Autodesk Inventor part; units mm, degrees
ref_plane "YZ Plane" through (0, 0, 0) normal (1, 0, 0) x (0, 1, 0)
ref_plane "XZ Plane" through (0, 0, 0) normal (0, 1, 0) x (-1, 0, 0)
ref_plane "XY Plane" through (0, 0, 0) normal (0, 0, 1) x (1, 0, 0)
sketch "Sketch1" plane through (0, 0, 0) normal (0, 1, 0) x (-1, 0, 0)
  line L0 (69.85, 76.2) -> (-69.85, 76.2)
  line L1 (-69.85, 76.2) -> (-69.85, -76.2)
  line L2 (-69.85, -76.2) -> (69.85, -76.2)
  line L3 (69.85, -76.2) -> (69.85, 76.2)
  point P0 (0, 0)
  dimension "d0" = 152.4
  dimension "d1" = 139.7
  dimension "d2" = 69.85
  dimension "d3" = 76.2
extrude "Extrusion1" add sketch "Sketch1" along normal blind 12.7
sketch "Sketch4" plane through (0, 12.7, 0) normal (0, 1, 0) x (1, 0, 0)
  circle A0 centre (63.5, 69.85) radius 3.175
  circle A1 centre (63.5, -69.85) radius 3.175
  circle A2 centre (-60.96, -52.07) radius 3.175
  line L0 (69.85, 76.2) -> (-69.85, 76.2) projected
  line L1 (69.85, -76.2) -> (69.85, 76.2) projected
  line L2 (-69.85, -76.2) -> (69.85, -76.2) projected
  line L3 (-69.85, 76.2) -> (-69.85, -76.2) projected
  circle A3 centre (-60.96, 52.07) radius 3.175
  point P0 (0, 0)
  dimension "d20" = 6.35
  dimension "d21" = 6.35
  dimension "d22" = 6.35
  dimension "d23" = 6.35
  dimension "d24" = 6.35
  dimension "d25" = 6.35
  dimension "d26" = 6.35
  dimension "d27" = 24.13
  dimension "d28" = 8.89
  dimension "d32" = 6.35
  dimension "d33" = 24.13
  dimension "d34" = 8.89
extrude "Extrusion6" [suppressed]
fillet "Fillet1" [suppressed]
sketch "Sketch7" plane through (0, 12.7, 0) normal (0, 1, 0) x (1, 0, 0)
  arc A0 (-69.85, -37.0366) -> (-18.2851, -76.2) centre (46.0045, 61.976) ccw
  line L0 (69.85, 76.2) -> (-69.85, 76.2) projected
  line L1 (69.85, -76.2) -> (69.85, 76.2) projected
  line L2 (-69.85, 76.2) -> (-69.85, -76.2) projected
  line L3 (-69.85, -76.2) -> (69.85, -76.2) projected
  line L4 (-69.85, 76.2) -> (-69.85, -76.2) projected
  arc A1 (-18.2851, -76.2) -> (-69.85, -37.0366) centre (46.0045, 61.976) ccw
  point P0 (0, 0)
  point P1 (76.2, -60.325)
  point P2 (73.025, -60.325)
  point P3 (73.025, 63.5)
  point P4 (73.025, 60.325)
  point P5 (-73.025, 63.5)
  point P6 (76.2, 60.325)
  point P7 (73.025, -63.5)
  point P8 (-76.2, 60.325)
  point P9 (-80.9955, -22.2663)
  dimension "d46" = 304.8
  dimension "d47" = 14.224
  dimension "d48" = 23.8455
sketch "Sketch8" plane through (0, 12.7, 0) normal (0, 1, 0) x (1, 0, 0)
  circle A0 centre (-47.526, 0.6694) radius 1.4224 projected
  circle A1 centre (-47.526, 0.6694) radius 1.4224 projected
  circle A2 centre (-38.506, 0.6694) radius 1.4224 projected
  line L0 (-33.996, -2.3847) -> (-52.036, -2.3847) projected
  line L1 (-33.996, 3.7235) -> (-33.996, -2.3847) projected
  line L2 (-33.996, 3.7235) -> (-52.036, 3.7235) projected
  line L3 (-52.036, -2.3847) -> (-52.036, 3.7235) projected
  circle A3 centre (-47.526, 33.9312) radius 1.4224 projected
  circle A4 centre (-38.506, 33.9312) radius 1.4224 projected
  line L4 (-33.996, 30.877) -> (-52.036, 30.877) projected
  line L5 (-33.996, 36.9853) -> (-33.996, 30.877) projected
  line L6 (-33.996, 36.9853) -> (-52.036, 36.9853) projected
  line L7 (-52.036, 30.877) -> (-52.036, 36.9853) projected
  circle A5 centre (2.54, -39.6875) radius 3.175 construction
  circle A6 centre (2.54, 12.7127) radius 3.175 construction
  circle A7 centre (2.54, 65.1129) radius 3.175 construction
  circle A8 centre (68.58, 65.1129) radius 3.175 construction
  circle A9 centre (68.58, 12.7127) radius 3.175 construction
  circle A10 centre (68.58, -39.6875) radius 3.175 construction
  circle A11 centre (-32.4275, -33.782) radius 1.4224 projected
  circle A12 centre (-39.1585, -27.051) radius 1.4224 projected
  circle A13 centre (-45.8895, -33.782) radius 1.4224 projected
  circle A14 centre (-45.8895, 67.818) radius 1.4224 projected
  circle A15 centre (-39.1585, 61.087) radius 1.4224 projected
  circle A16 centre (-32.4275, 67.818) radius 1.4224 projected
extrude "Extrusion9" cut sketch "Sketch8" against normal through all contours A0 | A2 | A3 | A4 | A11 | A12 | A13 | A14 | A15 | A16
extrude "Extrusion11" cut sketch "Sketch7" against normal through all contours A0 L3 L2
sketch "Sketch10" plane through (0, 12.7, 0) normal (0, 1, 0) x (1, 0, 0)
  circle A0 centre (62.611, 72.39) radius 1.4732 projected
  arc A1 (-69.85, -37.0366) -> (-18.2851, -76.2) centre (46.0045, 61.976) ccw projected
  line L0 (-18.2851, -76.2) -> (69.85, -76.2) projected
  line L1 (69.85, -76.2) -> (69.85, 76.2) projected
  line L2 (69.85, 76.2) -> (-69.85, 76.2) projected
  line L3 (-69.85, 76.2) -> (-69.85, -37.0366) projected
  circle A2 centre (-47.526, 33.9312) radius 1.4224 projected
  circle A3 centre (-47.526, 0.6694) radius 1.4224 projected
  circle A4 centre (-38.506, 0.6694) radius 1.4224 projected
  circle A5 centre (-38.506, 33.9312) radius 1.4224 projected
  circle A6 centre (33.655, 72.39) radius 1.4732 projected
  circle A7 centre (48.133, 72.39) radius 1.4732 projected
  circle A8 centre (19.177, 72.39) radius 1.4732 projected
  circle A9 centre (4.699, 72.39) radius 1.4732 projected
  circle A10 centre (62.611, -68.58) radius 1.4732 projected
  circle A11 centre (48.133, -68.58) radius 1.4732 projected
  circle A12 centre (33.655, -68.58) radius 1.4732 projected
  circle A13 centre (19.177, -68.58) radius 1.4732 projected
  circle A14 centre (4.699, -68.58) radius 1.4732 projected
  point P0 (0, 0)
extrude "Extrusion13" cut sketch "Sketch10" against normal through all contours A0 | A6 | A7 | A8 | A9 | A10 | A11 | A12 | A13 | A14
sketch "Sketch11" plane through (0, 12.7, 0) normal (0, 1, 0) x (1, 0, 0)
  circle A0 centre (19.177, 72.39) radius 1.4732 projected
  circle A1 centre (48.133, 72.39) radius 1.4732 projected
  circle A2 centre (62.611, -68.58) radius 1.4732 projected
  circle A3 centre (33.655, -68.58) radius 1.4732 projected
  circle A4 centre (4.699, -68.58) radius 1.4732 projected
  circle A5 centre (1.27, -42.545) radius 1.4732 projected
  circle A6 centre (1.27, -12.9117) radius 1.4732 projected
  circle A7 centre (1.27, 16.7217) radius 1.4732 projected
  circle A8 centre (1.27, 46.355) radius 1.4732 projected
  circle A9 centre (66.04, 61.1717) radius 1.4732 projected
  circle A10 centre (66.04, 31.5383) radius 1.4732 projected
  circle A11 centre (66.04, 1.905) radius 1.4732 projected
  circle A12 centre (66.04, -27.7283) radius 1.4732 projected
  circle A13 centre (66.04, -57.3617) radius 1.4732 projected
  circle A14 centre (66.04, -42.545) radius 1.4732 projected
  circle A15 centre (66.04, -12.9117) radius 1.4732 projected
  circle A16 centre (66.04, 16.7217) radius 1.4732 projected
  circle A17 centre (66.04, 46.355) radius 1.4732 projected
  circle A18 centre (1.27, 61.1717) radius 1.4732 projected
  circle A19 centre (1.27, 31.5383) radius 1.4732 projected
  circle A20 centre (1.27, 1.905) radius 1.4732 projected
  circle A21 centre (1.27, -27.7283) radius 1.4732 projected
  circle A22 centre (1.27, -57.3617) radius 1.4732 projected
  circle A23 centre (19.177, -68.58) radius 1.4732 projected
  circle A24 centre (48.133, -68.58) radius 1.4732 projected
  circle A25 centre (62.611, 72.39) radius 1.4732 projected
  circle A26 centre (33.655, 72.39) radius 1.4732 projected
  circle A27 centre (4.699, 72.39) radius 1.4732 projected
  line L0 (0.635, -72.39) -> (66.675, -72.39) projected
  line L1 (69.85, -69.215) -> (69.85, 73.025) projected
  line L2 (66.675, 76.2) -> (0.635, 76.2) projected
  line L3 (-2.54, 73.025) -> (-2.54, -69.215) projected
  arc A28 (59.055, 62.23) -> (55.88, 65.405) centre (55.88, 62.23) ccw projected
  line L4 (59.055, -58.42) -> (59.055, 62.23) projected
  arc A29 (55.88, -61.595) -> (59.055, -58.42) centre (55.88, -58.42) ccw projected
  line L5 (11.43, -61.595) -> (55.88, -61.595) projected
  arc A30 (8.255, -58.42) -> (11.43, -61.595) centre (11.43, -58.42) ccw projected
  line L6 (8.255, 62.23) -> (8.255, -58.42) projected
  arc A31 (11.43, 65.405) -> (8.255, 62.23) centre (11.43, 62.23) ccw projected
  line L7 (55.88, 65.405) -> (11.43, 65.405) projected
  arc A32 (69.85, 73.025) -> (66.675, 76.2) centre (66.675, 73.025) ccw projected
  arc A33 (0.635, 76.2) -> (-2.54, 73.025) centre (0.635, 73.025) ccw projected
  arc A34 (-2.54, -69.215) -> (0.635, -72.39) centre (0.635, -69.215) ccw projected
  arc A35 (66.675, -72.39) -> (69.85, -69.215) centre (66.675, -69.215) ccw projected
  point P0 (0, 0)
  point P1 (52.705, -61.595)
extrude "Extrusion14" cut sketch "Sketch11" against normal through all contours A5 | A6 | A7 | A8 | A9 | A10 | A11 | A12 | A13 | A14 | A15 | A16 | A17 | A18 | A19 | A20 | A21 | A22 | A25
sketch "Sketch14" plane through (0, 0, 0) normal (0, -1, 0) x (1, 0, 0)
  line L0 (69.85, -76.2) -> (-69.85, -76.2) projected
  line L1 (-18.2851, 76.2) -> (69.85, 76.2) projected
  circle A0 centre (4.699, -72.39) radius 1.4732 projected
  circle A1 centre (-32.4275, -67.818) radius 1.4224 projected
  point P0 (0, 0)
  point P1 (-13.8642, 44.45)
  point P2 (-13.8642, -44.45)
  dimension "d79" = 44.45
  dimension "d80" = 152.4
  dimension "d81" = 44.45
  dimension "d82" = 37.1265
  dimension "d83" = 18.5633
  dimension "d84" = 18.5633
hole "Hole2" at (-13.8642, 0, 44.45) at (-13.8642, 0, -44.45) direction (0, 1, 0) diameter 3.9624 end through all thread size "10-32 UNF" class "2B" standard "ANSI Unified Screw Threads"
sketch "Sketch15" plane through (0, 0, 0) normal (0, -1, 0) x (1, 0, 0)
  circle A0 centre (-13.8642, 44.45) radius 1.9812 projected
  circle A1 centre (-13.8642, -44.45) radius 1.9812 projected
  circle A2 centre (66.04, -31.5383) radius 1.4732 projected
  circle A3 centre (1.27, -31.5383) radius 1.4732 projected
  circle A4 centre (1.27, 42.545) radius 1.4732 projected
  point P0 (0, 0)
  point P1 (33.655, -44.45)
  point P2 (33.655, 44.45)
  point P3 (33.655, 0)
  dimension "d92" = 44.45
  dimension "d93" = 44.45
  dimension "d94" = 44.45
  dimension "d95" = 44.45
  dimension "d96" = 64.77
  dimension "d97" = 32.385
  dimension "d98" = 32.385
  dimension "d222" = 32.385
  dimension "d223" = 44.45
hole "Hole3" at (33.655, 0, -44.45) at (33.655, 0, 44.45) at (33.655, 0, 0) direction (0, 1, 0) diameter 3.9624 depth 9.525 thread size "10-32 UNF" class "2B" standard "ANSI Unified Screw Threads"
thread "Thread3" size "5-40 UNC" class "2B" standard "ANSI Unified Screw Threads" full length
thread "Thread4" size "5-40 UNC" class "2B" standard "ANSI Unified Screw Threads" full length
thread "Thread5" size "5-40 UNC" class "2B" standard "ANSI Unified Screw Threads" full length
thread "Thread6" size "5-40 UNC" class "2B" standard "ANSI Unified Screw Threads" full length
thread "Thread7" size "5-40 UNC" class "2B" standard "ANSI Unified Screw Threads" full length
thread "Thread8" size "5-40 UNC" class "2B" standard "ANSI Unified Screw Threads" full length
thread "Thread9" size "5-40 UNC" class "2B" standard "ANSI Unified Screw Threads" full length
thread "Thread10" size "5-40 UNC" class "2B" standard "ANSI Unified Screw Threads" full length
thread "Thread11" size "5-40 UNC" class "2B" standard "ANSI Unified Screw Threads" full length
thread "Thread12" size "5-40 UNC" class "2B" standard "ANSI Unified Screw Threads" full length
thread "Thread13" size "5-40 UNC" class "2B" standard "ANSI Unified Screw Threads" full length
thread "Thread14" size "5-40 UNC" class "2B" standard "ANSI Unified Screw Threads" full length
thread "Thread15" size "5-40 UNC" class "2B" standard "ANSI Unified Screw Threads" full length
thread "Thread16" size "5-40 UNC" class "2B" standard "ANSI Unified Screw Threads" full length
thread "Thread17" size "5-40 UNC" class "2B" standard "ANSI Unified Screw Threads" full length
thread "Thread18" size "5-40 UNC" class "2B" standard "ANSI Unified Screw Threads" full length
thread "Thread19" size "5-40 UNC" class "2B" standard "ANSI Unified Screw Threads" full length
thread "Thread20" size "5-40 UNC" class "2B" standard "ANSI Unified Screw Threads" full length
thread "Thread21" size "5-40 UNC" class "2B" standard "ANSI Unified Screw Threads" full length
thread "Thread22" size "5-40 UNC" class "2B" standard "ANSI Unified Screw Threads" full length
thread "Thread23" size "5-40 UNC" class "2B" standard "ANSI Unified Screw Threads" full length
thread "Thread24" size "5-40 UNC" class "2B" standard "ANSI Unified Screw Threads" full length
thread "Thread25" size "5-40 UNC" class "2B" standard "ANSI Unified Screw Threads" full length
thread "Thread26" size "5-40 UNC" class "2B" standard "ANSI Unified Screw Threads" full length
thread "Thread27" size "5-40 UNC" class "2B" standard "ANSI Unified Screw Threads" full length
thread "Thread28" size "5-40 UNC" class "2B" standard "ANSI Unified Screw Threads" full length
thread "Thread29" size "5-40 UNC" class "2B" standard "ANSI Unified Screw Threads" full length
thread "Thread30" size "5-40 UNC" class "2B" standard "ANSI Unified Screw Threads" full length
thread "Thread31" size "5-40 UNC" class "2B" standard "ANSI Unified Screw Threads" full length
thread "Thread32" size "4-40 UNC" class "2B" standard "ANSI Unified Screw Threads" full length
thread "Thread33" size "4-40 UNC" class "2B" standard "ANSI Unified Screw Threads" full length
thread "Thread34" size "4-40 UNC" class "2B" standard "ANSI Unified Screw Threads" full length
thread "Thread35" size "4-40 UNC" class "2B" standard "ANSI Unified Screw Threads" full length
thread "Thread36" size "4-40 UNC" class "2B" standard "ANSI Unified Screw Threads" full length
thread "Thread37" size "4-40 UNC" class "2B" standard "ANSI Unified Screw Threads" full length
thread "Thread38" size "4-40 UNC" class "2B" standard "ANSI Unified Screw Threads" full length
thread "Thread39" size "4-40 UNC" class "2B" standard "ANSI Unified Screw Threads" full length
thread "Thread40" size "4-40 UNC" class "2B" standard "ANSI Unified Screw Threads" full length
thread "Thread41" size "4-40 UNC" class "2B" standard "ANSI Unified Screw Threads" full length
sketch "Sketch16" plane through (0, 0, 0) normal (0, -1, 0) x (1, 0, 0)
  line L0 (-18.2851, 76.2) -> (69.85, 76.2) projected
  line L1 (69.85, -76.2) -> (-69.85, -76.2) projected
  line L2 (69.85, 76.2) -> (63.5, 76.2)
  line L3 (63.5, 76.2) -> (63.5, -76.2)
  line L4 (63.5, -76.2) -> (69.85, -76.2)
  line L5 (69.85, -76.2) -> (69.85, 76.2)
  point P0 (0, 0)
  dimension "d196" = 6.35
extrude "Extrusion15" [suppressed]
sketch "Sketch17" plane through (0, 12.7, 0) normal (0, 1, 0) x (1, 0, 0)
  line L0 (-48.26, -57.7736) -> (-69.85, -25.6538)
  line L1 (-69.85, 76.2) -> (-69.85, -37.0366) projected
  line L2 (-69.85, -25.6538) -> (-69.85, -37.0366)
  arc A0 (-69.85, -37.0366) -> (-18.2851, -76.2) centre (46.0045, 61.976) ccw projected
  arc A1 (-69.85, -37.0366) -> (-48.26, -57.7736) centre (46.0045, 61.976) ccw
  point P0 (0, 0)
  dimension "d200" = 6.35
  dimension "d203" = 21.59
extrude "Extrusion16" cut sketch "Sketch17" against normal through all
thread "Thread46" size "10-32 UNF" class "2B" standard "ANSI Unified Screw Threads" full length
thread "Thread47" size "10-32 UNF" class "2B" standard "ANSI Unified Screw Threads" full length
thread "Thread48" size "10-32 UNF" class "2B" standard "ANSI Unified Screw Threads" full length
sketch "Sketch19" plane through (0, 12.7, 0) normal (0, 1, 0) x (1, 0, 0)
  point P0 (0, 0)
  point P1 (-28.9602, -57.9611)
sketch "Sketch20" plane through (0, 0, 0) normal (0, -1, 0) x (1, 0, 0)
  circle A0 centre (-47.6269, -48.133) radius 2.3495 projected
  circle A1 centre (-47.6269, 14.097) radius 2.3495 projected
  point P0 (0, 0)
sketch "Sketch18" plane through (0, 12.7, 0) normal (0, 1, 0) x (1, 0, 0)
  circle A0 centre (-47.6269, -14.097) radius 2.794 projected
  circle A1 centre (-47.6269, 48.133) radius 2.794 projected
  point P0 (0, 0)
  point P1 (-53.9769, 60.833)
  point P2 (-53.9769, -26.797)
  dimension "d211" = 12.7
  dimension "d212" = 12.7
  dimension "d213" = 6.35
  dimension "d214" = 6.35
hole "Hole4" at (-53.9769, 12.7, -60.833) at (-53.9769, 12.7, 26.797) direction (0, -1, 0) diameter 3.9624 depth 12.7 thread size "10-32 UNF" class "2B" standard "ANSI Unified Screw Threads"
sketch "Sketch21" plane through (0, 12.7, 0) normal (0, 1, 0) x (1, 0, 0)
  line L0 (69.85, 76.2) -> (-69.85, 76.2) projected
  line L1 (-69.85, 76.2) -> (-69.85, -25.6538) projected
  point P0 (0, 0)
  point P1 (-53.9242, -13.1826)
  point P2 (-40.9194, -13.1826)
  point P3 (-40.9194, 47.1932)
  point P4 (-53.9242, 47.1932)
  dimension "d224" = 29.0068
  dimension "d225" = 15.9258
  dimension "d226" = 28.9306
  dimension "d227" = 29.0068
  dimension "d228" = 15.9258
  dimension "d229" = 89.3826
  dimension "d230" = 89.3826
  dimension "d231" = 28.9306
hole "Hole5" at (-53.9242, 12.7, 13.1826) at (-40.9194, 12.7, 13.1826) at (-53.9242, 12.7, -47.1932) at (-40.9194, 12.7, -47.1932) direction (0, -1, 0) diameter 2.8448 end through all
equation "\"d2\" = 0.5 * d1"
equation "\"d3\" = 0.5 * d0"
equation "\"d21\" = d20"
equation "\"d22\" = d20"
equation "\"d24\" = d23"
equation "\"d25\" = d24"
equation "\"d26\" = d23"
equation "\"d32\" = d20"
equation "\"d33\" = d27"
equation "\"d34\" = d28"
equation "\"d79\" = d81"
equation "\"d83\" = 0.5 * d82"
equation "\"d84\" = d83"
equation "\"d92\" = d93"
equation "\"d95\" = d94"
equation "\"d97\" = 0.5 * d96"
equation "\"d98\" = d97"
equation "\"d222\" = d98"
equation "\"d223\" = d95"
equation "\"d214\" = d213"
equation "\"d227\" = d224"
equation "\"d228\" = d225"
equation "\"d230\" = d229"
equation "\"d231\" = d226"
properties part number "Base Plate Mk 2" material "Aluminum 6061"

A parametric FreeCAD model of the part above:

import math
import FreeCAD as App
import Part
import Sketcher
from FreeCAD import Vector
Q = App.Units.Quantity

doc = App.newDocument("Part")
body = doc.addObject("PartDesign::Body", "Body")

# Sketch on XZ plane
sketch1 = doc.addObject("Sketcher::SketchObject", "Sketch")
body.addObject(sketch1)
sketch1.AttachmentSupport = (doc.XZ_Plane, [""])
sketch1.MapMode = "FlatFace"
sketch1.addGeometry(Part.LineSegment(Vector(-70, -76, 0), Vector(-70, 76, 0)), False)
sketch1.addGeometry(Part.LineSegment(Vector(-70, 76, 0), Vector(70, 76, 0)), False)
sketch1.addGeometry(Part.LineSegment(Vector(70, 76, 0), Vector(70, -76, 0)), False)
sketch1.addGeometry(Part.LineSegment(Vector(70, -76, 0), Vector(-70, -76, 0)), False)
sketch1.addConstraint(Sketcher.Constraint("Coincident", 0, 2, 1, 1))
sketch1.addConstraint(Sketcher.Constraint("Coincident", 1, 2, 2, 1))
sketch1.addConstraint(Sketcher.Constraint("Coincident", 2, 2, 3, 1))
sketch1.addConstraint(Sketcher.Constraint("Coincident", 3, 2, 0, 1))
sketch1.addConstraint(Sketcher.Constraint("Vertical", 0))
sketch1.addConstraint(Sketcher.Constraint("Horizontal", 1))
sketch1.addConstraint(Sketcher.Constraint("Vertical", 2))
sketch1.addConstraint(Sketcher.Constraint("Horizontal", 3))
sketch1.addConstraint(Sketcher.Constraint("Symmetric", 0, 2, 2, 2, -1, 1))
sketch1.addConstraint(Sketcher.Constraint("DistanceY", 0, 1, 0, 2, Q("6 in")))
sketch1.addConstraint(Sketcher.Constraint("DistanceX", 1, 1, 1, 2, Q("5.5 in")))
pad1 = doc.addObject("PartDesign::Pad", "Pad")
body.addObject(pad1)
pad1.Profile = sketch1
pad1.Length = Q("0.5 in")
pad1.Reversed = True

# Sketch on XZ plane
sketch2 = doc.addObject("Sketcher::SketchObject", "Sketch001")
body.addObject(sketch2)
sketch2.AttachmentSupport = (doc.XZ_Plane, [""])
sketch2.MapMode = "FlatFace"
sketch2.AttachmentOffset = App.Placement(Vector(0, 0, -0.5 * 25.4), App.Rotation())
sketch2.addGeometry(Part.Circle(Vector(-47.5, -0.7, 0), Vector(0, 0, 1), 1.4), False)
sketch2.addGeometry(Part.Circle(Vector(-38.5, -0.7, 0), Vector(0, 0, 1), 1.4), False)
sketch2.addGeometry(Part.Circle(Vector(-47.5, -33.9, 0), Vector(0, 0, 1), 1.4), False)
sketch2.addGeometry(Part.Circle(Vector(-38.5, -33.9, 0), Vector(0, 0, 1), 1.4), False)
sketch2.addGeometry(Part.Circle(Vector(-32.4, 33.8, 0), Vector(0, 0, 1), 1.4), False)
sketch2.addGeometry(Part.Circle(Vector(-39.2, 27.1, 0), Vector(0, 0, 1), 1.4), False)
sketch2.addGeometry(Part.Circle(Vector(-45.9, 33.8, 0), Vector(0, 0, 1), 1.4), False)
sketch2.addGeometry(Part.Circle(Vector(-45.9, -67.8, 0), Vector(0, 0, 1), 1.4), False)
sketch2.addGeometry(Part.Circle(Vector(-39.2, -61.1, 0), Vector(0, 0, 1), 1.4), False)
sketch2.addGeometry(Part.Circle(Vector(-32.4, -67.8, 0), Vector(0, 0, 1), 1.4), False)
sketch2.addConstraint(Sketcher.Constraint("Equal", 0, 1))
sketch2.addConstraint(Sketcher.Constraint("Equal", 1, 2))
sketch2.addConstraint(Sketcher.Constraint("Equal", 2, 3))
sketch2.addConstraint(Sketcher.Constraint("Equal", 3, 4))
sketch2.addConstraint(Sketcher.Constraint("Equal", 4, 5))
sketch2.addConstraint(Sketcher.Constraint("Equal", 5, 6))
sketch2.addConstraint(Sketcher.Constraint("Equal", 6, 7))
sketch2.addConstraint(Sketcher.Constraint("Equal", 7, 8))
sketch2.addConstraint(Sketcher.Constraint("Equal", 8, 9))
sketch2.addConstraint(Sketcher.Constraint("Horizontal", 0, 3, 1, 3))
sketch2.addConstraint(Sketcher.Constraint("Horizontal", 2, 3, 3, 3))
sketch2.addConstraint(Sketcher.Constraint("Horizontal", 4, 3, 6, 3))
sketch2.addConstraint(Sketcher.Constraint("Horizontal", 7, 3, 9, 3))
sketch2.addConstraint(Sketcher.Constraint("Vertical", 0, 3, 2, 3))
sketch2.addConstraint(Sketcher.Constraint("Vertical", 1, 3, 3, 3))
sketch2.addConstraint(Sketcher.Constraint("Vertical", 6, 3, 7, 3))
sketch2.addConstraint(Sketcher.Constraint("Vertical", 5, 3, 8, 3))
sketch2.addConstraint(Sketcher.Constraint("Vertical", 4, 3, 9, 3))
sketch2.addConstraint(Sketcher.Constraint("Diameter", 0, Q("0.112 in")))
sketch2.addConstraint(Sketcher.Constraint("DistanceY", -1, 1, 4, 3, Q("1.33 in")))
sketch2.addConstraint(Sketcher.Constraint("DistanceY", 7, 3, -1, 1, Q("2.67 in")))
sketch2.addConstraint(Sketcher.Constraint("DistanceX", 6, 3, 4, 3, Q("0.53 in")))
sketch2.addConstraint(Sketcher.Constraint("DistanceY", -1, 1, 5, 3, Q("1.065 in")))
sketch2.addConstraint(Sketcher.Constraint("DistanceY", 8, 3, -1, 1, Q("2.405 in")))
sketch2.addConstraint(Sketcher.Constraint("DistanceX", 5, 3, 4, 3, Q("0.265 in")))
sketch2.addConstraint(Sketcher.Constraint("DistanceX", 0, 3, -1, 1, Q("1.8711 in")))
sketch2.addConstraint(Sketcher.Constraint("DistanceX", 1, 3, 4, 3, Q("0.2393 in")))
sketch2.addConstraint(Sketcher.Constraint("DistanceY", 0, 3, -1, 1, Q("0.6694 mm")))
sketch2.addConstraint(Sketcher.Constraint("DistanceX", 1, 3, -1, 1, Q("38.506 mm")))
sketch2.addConstraint(Sketcher.Constraint("DistanceY", 2, 3, -1, 1, Q("33.9312 mm")))
pocket1 = doc.addObject("PartDesign::Pocket", "Pocket")
body.addObject(pocket1)
pocket1.Profile = sketch2
pocket1.Type = "ThroughAll"
pocket1.Reversed = True

# Sketch on XZ plane
sketch3 = doc.addObject("Sketcher::SketchObject", "Sketch002")
body.addObject(sketch3)
sketch3.AttachmentSupport = (doc.XZ_Plane, [""])
sketch3.MapMode = "FlatFace"
sketch3.AttachmentOffset = App.Placement(Vector(0, 0, -0.5 * 25.4), App.Rotation())
sketch3.addGeometry(Part.ArcOfCircle(Part.Circle(Vector(46, -62, 0), Vector(0, 0, 1), 152), math.radians(115), math.radians(139)), False)
sketch3.addGeometry(Part.LineSegment(Vector(-70, 37, 0), Vector(-70, 76, 0)), False)
sketch3.addGeometry(Part.LineSegment(Vector(-70, 76, 0), Vector(-18, 76, 0)), False)
sketch3.addConstraint(Sketcher.Constraint("Coincident", 0, 2, 1, 1))
sketch3.addConstraint(Sketcher.Constraint("Coincident", 1, 2, 2, 1))
sketch3.addConstraint(Sketcher.Constraint("Coincident", 2, 2, 0, 1))
sketch3.addConstraint(Sketcher.Constraint("Vertical", 1))
sketch3.addConstraint(Sketcher.Constraint("Horizontal", 2))
sketch3.addConstraint(Sketcher.Constraint("Radius", 0, Q("6 in")))
sketch3.addConstraint(Sketcher.Constraint("DistanceY", -1, 1, 1, 2, Q("3 in")))
sketch3.addConstraint(Sketcher.Constraint("DistanceY", 0, 3, -1, 1, Q("2.44 in")))
sketch3.addConstraint(Sketcher.Constraint("DistanceX", 0, 2, -1, 1, Q("2.75 in")))
sketch3.addConstraint(Sketcher.Constraint("DistanceX", 2, 1, 2, 2, Q("51.565 mm")))
pocket2 = doc.addObject("PartDesign::Pocket", "Pocket001")
body.addObject(pocket2)
pocket2.Profile = sketch3
pocket2.Type = "ThroughAll"
pocket2.Reversed = True

# Sketch on XZ plane
sketch4 = doc.addObject("Sketcher::SketchObject", "Sketch003")
body.addObject(sketch4)
sketch4.AttachmentSupport = (doc.XZ_Plane, [""])
sketch4.MapMode = "FlatFace"
sketch4.AttachmentOffset = App.Placement(Vector(0, 0, -0.5 * 25.4), App.Rotation())
sketch4.addGeometry(Part.Circle(Vector(62.6, -72.4, 0), Vector(0, 0, 1), 1.5), False)
sketch4.addGeometry(Part.Circle(Vector(33.7, -72.4, 0), Vector(0, 0, 1), 1.5), False)
sketch4.addGeometry(Part.Circle(Vector(48.1, -72.4, 0), Vector(0, 0, 1), 1.5), False)
sketch4.addGeometry(Part.Circle(Vector(19.2, -72.4, 0), Vector(0, 0, 1), 1.5), False)
sketch4.addGeometry(Part.Circle(Vector(4.7, -72.4, 0), Vector(0, 0, 1), 1.5), False)
sketch4.addGeometry(Part.Circle(Vector(62.6, 68.6, 0), Vector(0, 0, 1), 1.5), False)
sketch4.addGeometry(Part.Circle(Vector(48.1, 68.6, 0), Vector(0, 0, 1), 1.5), False)
sketch4.addGeometry(Part.Circle(Vector(33.7, 68.6, 0), Vector(0, 0, 1), 1.5), False)
sketch4.addGeometry(Part.Circle(Vector(19.2, 68.6, 0), Vector(0, 0, 1), 1.5), False)
sketch4.addGeometry(Part.Circle(Vector(4.7, 68.6, 0), Vector(0, 0, 1), 1.5), False)
sketch4.addConstraint(Sketcher.Constraint("Equal", 0, 1))
sketch4.addConstraint(Sketcher.Constraint("Equal", 1, 2))
sketch4.addConstraint(Sketcher.Constraint("Equal", 2, 3))
sketch4.addConstraint(Sketcher.Constraint("Equal", 3, 4))
sketch4.addConstraint(Sketcher.Constraint("Equal", 4, 5))
sketch4.addConstraint(Sketcher.Constraint("Equal", 5, 6))
sketch4.addConstraint(Sketcher.Constraint("Equal", 6, 7))
sketch4.addConstraint(Sketcher.Constraint("Equal", 7, 8))
sketch4.addConstraint(Sketcher.Constraint("Equal", 8, 9))
sketch4.addConstraint(Sketcher.Constraint("Horizontal", 0, 3, 1, 3))
sketch4.addConstraint(Sketcher.Constraint("Horizontal", 1, 3, 2, 3))
sketch4.addConstraint(Sketcher.Constraint("Horizontal", 2, 3, 3, 3))
sketch4.addConstraint(Sketcher.Constraint("Horizontal", 3, 3, 4, 3))
sketch4.addConstraint(Sketcher.Constraint("Horizontal", 5, 3, 6, 3))
sketch4.addConstraint(Sketcher.Constraint("Horizontal", 6, 3, 7, 3))
sketch4.addConstraint(Sketcher.Constraint("Horizontal", 7, 3, 8, 3))
sketch4.addConstraint(Sketcher.Constraint("Horizontal", 8, 3, 9, 3))
sketch4.addConstraint(Sketcher.Constraint("Vertical", 0, 3, 5, 3))
sketch4.addConstraint(Sketcher.Constraint("Vertical", 2, 3, 6, 3))
sketch4.addConstraint(Sketcher.Constraint("Vertical", 1, 3, 7, 3))
sketch4.addConstraint(Sketcher.Constraint("Vertical", 3, 3, 8, 3))
sketch4.addConstraint(Sketcher.Constraint("Vertical", 4, 3, 9, 3))
sketch4.addConstraint(Sketcher.Constraint("Diameter", 0, Q("0.116 in")))
sketch4.addConstraint(Sketcher.Constraint("DistanceY", -1, 1, 5, 3, Q("2.7 in")))
sketch4.addConstraint(Sketcher.Constraint("DistanceY", 0, 3, -1, 1, Q("2.85 in")))
sketch4.addConstraint(Sketcher.Constraint("DistanceX", 1, 3, 0, 3, Q("1.14 in")))
sketch4.addConstraint(Sketcher.Constraint("DistanceX", 2, 3, 0, 3, Q("0.57 in")))
sketch4.addConstraint(Sketcher.Constraint("DistanceX", 3, 3, 1, 3, Q("0.57 in")))
sketch4.addConstraint(Sketcher.Constraint("DistanceX", 4, 3, 3, 3, Q("0.57 in")))
sketch4.addConstraint(Sketcher.Constraint("DistanceX", -1, 1, 0, 3, Q("2.465 in")))
pocket3 = doc.addObject("PartDesign::Pocket", "Pocket002")
body.addObject(pocket3)
pocket3.Profile = sketch4
pocket3.Type = "ThroughAll"
pocket3.Reversed = True

# Sketch on XZ plane
sketch5 = doc.addObject("Sketcher::SketchObject", "Sketch004")
body.addObject(sketch5)
sketch5.AttachmentSupport = (doc.XZ_Plane, [""])
sketch5.MapMode = "FlatFace"
sketch5.AttachmentOffset = App.Placement(Vector(0, 0, -0.5 * 25.4), App.Rotation())
sketch5.addGeometry(Part.Circle(Vector(1.3, 42.5, 0), Vector(0, 0, 1), 1.5), False)
sketch5.addGeometry(Part.Circle(Vector(1.3, 12.9, 0), Vector(0, 0, 1), 1.5), False)
sketch5.addGeometry(Part.Circle(Vector(1.3, -16.7, 0), Vector(0, 0, 1), 1.5), False)
sketch5.addGeometry(Part.Circle(Vector(1.3, -46.4, 0), Vector(0, 0, 1), 1.5), False)
sketch5.addGeometry(Part.Circle(Vector(66, -61.2, 0), Vector(0, 0, 1), 1.5), False)
sketch5.addGeometry(Part.Circle(Vector(66, -31.5, 0), Vector(0, 0, 1), 1.5), False)
sketch5.addGeometry(Part.Circle(Vector(66, -1.9, 0), Vector(0, 0, 1), 1.5), False)
sketch5.addGeometry(Part.Circle(Vector(66, 27.7, 0), Vector(0, 0, 1), 1.5), False)
sketch5.addGeometry(Part.Circle(Vector(66, 57.4, 0), Vector(0, 0, 1), 1.5), False)
sketch5.addGeometry(Part.Circle(Vector(66, 42.5, 0), Vector(0, 0, 1), 1.5), False)
sketch5.addGeometry(Part.Circle(Vector(66, 12.9, 0), Vector(0, 0, 1), 1.5), False)
sketch5.addGeometry(Part.Circle(Vector(66, -16.7, 0), Vector(0, 0, 1), 1.5), False)
sketch5.addGeometry(Part.Circle(Vector(66, -46.4, 0), Vector(0, 0, 1), 1.5), False)
sketch5.addGeometry(Part.Circle(Vector(1.3, -61.2, 0), Vector(0, 0, 1), 1.5), False)
sketch5.addGeometry(Part.Circle(Vector(1.3, -31.5, 0), Vector(0, 0, 1), 1.5), False)
sketch5.addGeometry(Part.Circle(Vector(1.3, -1.9, 0), Vector(0, 0, 1), 1.5), False)
sketch5.addGeometry(Part.Circle(Vector(1.3, 27.7, 0), Vector(0, 0, 1), 1.5), False)
sketch5.addGeometry(Part.Circle(Vector(1.3, 57.4, 0), Vector(0, 0, 1), 1.5), False)
sketch5.addGeometry(Part.Circle(Vector(62.6, -72.4, 0), Vector(0, 0, 1), 1.5), False)
sketch5.addConstraint(Sketcher.Constraint("Equal", 0, 1))
sketch5.addConstraint(Sketcher.Constraint("Equal", 1, 2))
sketch5.addConstraint(Sketcher.Constraint("Equal", 2, 3))
sketch5.addConstraint(Sketcher.Constraint("Equal", 3, 4))
sketch5.addConstraint(Sketcher.Constraint("Equal", 4, 5))
sketch5.addConstraint(Sketcher.Constraint("Equal", 5, 6))
sketch5.addConstraint(Sketcher.Constraint("Equal", 6, 7))
sketch5.addConstraint(Sketcher.Constraint("Equal", 7, 8))
sketch5.addConstraint(Sketcher.Constraint("Equal", 8, 9))
sketch5.addConstraint(Sketcher.Constraint("Equal", 9, 10))
sketch5.addConstraint(Sketcher.Constraint("Equal", 10, 11))
sketch5.addConstraint(Sketcher.Constraint("Equal", 11, 12))
sketch5.addConstraint(Sketcher.Constraint("Equal", 12, 13))
sketch5.addConstraint(Sketcher.Constraint("Equal", 13, 14))
sketch5.addConstraint(Sketcher.Constraint("Equal", 14, 15))
sketch5.addConstraint(Sketcher.Constraint("Equal", 15, 16))
sketch5.addConstraint(Sketcher.Constraint("Equal", 16, 17))
sketch5.addConstraint(Sketcher.Constraint("Equal", 17, 18))
sketch5.addConstraint(Sketcher.Constraint("Horizontal", 0, 3, 9, 3))
sketch5.addConstraint(Sketcher.Constraint("Horizontal", 1, 3, 10, 3))
sketch5.addConstraint(Sketcher.Constraint("Horizontal", 2, 3, 11, 3))
sketch5.addConstraint(Sketcher.Constraint("Horizontal", 3, 3, 12, 3))
sketch5.addConstraint(Sketcher.Constraint("Horizontal", 4, 3, 13, 3))
sketch5.addConstraint(Sketcher.Constraint("Horizontal", 5, 3, 14, 3))
sketch5.addConstraint(Sketcher.Constraint("Horizontal", 6, 3, 15, 3))
sketch5.addConstraint(Sketcher.Constraint("Horizontal", 7, 3, 16, 3))
sketch5.addConstraint(Sketcher.Constraint("Horizontal", 8, 3, 17, 3))
sketch5.addConstraint(Sketcher.Constraint("Vertical", 0, 3, 1, 3))
sketch5.addConstraint(Sketcher.Constraint("Vertical", 1, 3, 2, 3))
sketch5.addConstraint(Sketcher.Constraint("Vertical", 2, 3, 3, 3))
sketch5.addConstraint(Sketcher.Constraint("Vertical", 4, 3, 5, 3))
sketch5.addConstraint(Sketcher.Constraint("Vertical", 5, 3, 6, 3))
sketch5.addConstraint(Sketcher.Constraint("Vertical", 6, 3, 7, 3))
sketch5.addConstraint(Sketcher.Constraint("Vertical", 7, 3, 8, 3))
sketch5.addConstraint(Sketcher.Constraint("Vertical", 8, 3, 9, 3))
sketch5.addConstraint(Sketcher.Constraint("Vertical", 9, 3, 10, 3))
sketch5.addConstraint(Sketcher.Constraint("Vertical", 10, 3, 11, 3))
sketch5.addConstraint(Sketcher.Constraint("Vertical", 11, 3, 12, 3))
sketch5.addConstraint(Sketcher.Constraint("Vertical", 3, 3, 13, 3))
sketch5.addConstraint(Sketcher.Constraint("Vertical", 13, 3, 14, 3))
sketch5.addConstraint(Sketcher.Constraint("Vertical", 14, 3, 15, 3))
sketch5.addConstraint(Sketcher.Constraint("Vertical", 15, 3, 16, 3))
sketch5.addConstraint(Sketcher.Constraint("Vertical", 16, 3, 17, 3))
sketch5.addConstraint(Sketcher.Constraint("Diameter", 0, Q("0.116 in")))
sketch5.addConstraint(Sketcher.Constraint("DistanceX", -1, 1, 4, 3, Q("2.6 in")))
sketch5.addConstraint(Sketcher.Constraint("DistanceY", 3, 3, 0, 3, Q("3.5 in")))
sketch5.addConstraint(Sketcher.Constraint("DistanceY", 5, 3, 8, 3, Q("3.5 in")))
sketch5.addConstraint(Sketcher.Constraint("DistanceX", -1, 1, 0, 3, Q("0.05 in")))
sketch5.addConstraint(Sketcher.Constraint("DistanceY", 18, 3, -1, 1, Q("2.85 in")))
sketch5.addConstraint(Sketcher.Constraint("DistanceY", 4, 3, 2, 3, Q("1.75 in")))
sketch5.addConstraint(Sketcher.Constraint("DistanceY", 5, 3, 1, 3, Q("1.75 in")))
sketch5.addConstraint(Sketcher.Constraint("DistanceY", 3, 3, 6, 3, Q("1.75 in")))
sketch5.addConstraint(Sketcher.Constraint("DistanceY", 2, 3, 7, 3, Q("1.75 in")))
sketch5.addConstraint(Sketcher.Constraint("DistanceY", -1, 1, 0, 3, Q("1.675 in")))
sketch5.addConstraint(Sketcher.Constraint("DistanceX", -1, 1, 18, 3, Q("2.465 in")))
sketch5.addConstraint(Sketcher.Constraint("DistanceY", -1, 1, 1, 3, Q("12.9117 mm")))
sketch5.addConstraint(Sketcher.Constraint("DistanceY", 2, 3, -1, 1, Q("16.7217 mm")))
pocket4 = doc.addObject("PartDesign::Pocket", "Pocket003")
body.addObject(pocket4)
pocket4.Profile = sketch5
pocket4.Type = "ThroughAll"
pocket4.Reversed = True

# Sketch on XZ plane
sketch6 = doc.addObject("Sketcher::SketchObject", "Sketch005")
body.addObject(sketch6)
sketch6.AttachmentSupport = (doc.XZ_Plane, [""])
sketch6.MapMode = "FlatFace"
sketch6.addGeometry(Part.Circle(Vector(-13.9, 44.5, 0), Vector(0, 0, 1), 2), False)
sketch6.addGeometry(Part.Circle(Vector(-13.9, -44.5, 0), Vector(0, 0, 1), 2), False)
sketch6.addConstraint(Sketcher.Constraint("Equal", 0, 1))
sketch6.addConstraint(Sketcher.Constraint("Symmetric", 0, 3, 1, 3, -1))
sketch6.addConstraint(Sketcher.Constraint("Diameter", 0, Q("0.156 in")))
sketch6.addConstraint(Sketcher.Constraint("DistanceY", 1, 3, 0, 3, Q("3.5 in")))
sketch6.addConstraint(Sketcher.Constraint("DistanceX", 0, 3, -1, 1, Q("13.8642 mm")))
doc.recompute()
hole = doc.addObject("PartDesign::Hole", "Hole")
body.addObject(hole)
hole.Profile = sketch6
hole.ThreadType = "None"
hole.Diameter = Q("0.156 in")
hole.DepthType = "ThroughAll"

# Sketch on XZ plane
sketch7 = doc.addObject("Sketcher::SketchObject", "Sketch006")
body.addObject(sketch7)
sketch7.AttachmentSupport = (doc.XZ_Plane, [""])
sketch7.MapMode = "FlatFace"
sketch7.addGeometry(Part.Circle(Vector(33.7, -44.5, 0), Vector(0, 0, 1), 2), False)
sketch7.addGeometry(Part.Circle(Vector(33.7, 44.5, 0), Vector(0, 0, 1), 2), False)
sketch7.addGeometry(Part.Circle(Vector(33.7, 0, 0), Vector(0, 0, 1), 2), False)
sketch7.addConstraint(Sketcher.Constraint("Equal", 0, 1))
sketch7.addConstraint(Sketcher.Constraint("Equal", 1, 2))
sketch7.addConstraint(Sketcher.Constraint("Symmetric", 0, 3, 1, 3, -1))
sketch7.addConstraint(Sketcher.Constraint("PointOnObject", 2, 3, -1))
sketch7.addConstraint(Sketcher.Constraint("Vertical", 1, 3, 2, 3))
sketch7.addConstraint(Sketcher.Constraint("Diameter", 0, Q("0.156 in")))
sketch7.addConstraint(Sketcher.Constraint("DistanceY", 0, 3, 1, 3, Q("3.5 in")))
sketch7.addConstraint(Sketcher.Constraint("DistanceX", -1, 1, 0, 3, Q("1.325 in")))
doc.recompute()
hole2 = doc.addObject("PartDesign::Hole", "Hole001")
body.addObject(hole2)
hole2.Profile = sketch7
hole2.ThreadType = "None"
hole2.Diameter = Q("0.156 in")
hole2.DepthType = "Dimension"
hole2.Depth = Q("0.375 in")
hole2.DrillPoint = "Flat"

# Sketch on XZ plane
sketch8 = doc.addObject("Sketcher::SketchObject", "Sketch007")
body.addObject(sketch8)
sketch8.AttachmentSupport = (doc.XZ_Plane, [""])
sketch8.MapMode = "FlatFace"
sketch8.AttachmentOffset = App.Placement(Vector(0, 0, -0.5 * 25.4), App.Rotation())
sketch8.addGeometry(Part.ArcOfCircle(Part.Circle(Vector(46, -62, 0), Vector(0, 0, 1), 152), math.radians(128.21), math.radians(139.48)), False)
sketch8.addGeometry(Part.LineSegment(Vector(-48, 58, 0), Vector(-70, 26, 0)), False)
sketch8.addGeometry(Part.LineSegment(Vector(-70, 26, 0), Vector(-70, 37, 0)), False)
sketch8.addConstraint(Sketcher.Constraint("Coincident", 0, 1, 1, 1))
sketch8.addConstraint(Sketcher.Constraint("Coincident", 1, 2, 2, 1))
sketch8.addConstraint(Sketcher.Constraint("Coincident", 2, 2, 0, 2))
sketch8.addConstraint(Sketcher.Constraint("Vertical", 2))
sketch8.addConstraint(Sketcher.Constraint("Radius", 0, Q("6 in")))
sketch8.addConstraint(Sketcher.Constraint("DistanceX", 1, 2, 0, 1, Q("0.85 in")))
sketch8.addConstraint(Sketcher.Constraint("DistanceX", 0, 1, -1, 1, Q("1.9 in")))
sketch8.addConstraint(Sketcher.Constraint("DistanceY", 0, 3, -1, 1, Q("2.44 in")))
sketch8.addConstraint(Sketcher.Constraint("DistanceY", -1, 1, 1, 2, Q("1.01 in")))
sketch8.addConstraint(Sketcher.Constraint("DistanceY", 2, 1, 2, 2, Q("11.3828 mm")))
pocket5 = doc.addObject("PartDesign::Pocket", "Pocket004")
body.addObject(pocket5)
pocket5.Profile = sketch8
pocket5.Type = "ThroughAll"
pocket5.Reversed = True

# Sketch on XZ plane
sketch9 = doc.addObject("Sketcher::SketchObject", "Sketch008")
body.addObject(sketch9)
sketch9.AttachmentSupport = (doc.XZ_Plane, [""])
sketch9.MapMode = "FlatFace"
sketch9.AttachmentOffset = App.Placement(Vector(0, 0, -0.5 * 25.4), App.Rotation())
sketch9.addGeometry(Part.Circle(Vector(-54, -60.8, 0), Vector(0, 0, 1), 2), False)
sketch9.addGeometry(Part.Circle(Vector(-54, 26.8, 0), Vector(0, 0, 1), 2), False)
sketch9.addConstraint(Sketcher.Constraint("Equal", 0, 1))
sketch9.addConstraint(Sketcher.Constraint("Vertical", 0, 3, 1, 3))
sketch9.addConstraint(Sketcher.Constraint("Diameter", 0, Q("0.156 in")))
sketch9.addConstraint(Sketcher.Constraint("DistanceY", 0, 3, 1, 3, Q("3.45 in")))
sketch9.addConstraint(Sketcher.Constraint("DistanceY", 0, 3, -1, 1, Q("2.395 in")))
sketch9.addConstraint(Sketcher.Constraint("DistanceX", 0, 3, -1, 1, Q("53.977 mm")))
doc.recompute()
hole3 = doc.addObject("PartDesign::Hole", "Hole002")
body.addObject(hole3)
hole3.Profile = sketch9
hole3.ThreadType = "None"
hole3.Diameter = Q("0.156 in")
hole3.DepthType = "Dimension"
hole3.Depth = Q("0.5 in")
hole3.DrillPoint = "Flat"
hole3.Reversed = True

# Sketch on XZ plane
sketch10 = doc.addObject("Sketcher::SketchObject", "Sketch009")
body.addObject(sketch10)
sketch10.AttachmentSupport = (doc.XZ_Plane, [""])
sketch10.MapMode = "FlatFace"
sketch10.AttachmentOffset = App.Placement(Vector(0, 0, -0.5 * 25.4), App.Rotation())
sketch10.addGeometry(Part.Circle(Vector(-53.9, 13.2, 0), Vector(0, 0, 1), 1.4), False)
sketch10.addGeometry(Part.Circle(Vector(-40.9, 13.2, 0), Vector(0, 0, 1), 1.4), False)
sketch10.addGeometry(Part.Circle(Vector(-53.9, -47.2, 0), Vector(0, 0, 1), 1.4), False)
sketch10.addGeometry(Part.Circle(Vector(-40.9, -47.2, 0), Vector(0, 0, 1), 1.4), False)
sketch10.addConstraint(Sketcher.Constraint("Equal", 0, 1))
sketch10.addConstraint(Sketcher.Constraint("Equal", 1, 2))
sketch10.addConstraint(Sketcher.Constraint("Equal", 2, 3))
sketch10.addConstraint(Sketcher.Constraint("Horizontal", 0, 3, 1, 3))
sketch10.addConstraint(Sketcher.Constraint("Horizontal", 2, 3, 3, 3))
sketch10.addConstraint(Sketcher.Constraint("Vertical", 0, 3, 2, 3))
sketch10.addConstraint(Sketcher.Constraint("Vertical", 1, 3, 3, 3))
sketch10.addConstraint(Sketcher.Constraint("Diameter", 0, Q("0.112 in")))
sketch10.addConstraint(Sketcher.Constraint("DistanceX", 0, 3, -1, 1, Q("2.123 in")))
sketch10.addConstraint(Sketcher.Constraint("DistanceY", -1, 1, 0, 3, Q("0.519 in")))
sketch10.addConstraint(Sketcher.Constraint("DistanceX", 1, 3, -1, 1, Q("1.611 in")))
sketch10.addConstraint(Sketcher.Constraint("DistanceY", 2, 3, -1, 1, Q("1.858 in")))
doc.recompute()
hole4 = doc.addObject("PartDesign::Hole", "Hole003")
body.addObject(hole4)
hole4.Profile = sketch10
hole4.ThreadType = "None"
hole4.Diameter = Q("0.112 in")
hole4.DepthType = "ThroughAll"
hole4.Reversed = True

doc.recompute()
